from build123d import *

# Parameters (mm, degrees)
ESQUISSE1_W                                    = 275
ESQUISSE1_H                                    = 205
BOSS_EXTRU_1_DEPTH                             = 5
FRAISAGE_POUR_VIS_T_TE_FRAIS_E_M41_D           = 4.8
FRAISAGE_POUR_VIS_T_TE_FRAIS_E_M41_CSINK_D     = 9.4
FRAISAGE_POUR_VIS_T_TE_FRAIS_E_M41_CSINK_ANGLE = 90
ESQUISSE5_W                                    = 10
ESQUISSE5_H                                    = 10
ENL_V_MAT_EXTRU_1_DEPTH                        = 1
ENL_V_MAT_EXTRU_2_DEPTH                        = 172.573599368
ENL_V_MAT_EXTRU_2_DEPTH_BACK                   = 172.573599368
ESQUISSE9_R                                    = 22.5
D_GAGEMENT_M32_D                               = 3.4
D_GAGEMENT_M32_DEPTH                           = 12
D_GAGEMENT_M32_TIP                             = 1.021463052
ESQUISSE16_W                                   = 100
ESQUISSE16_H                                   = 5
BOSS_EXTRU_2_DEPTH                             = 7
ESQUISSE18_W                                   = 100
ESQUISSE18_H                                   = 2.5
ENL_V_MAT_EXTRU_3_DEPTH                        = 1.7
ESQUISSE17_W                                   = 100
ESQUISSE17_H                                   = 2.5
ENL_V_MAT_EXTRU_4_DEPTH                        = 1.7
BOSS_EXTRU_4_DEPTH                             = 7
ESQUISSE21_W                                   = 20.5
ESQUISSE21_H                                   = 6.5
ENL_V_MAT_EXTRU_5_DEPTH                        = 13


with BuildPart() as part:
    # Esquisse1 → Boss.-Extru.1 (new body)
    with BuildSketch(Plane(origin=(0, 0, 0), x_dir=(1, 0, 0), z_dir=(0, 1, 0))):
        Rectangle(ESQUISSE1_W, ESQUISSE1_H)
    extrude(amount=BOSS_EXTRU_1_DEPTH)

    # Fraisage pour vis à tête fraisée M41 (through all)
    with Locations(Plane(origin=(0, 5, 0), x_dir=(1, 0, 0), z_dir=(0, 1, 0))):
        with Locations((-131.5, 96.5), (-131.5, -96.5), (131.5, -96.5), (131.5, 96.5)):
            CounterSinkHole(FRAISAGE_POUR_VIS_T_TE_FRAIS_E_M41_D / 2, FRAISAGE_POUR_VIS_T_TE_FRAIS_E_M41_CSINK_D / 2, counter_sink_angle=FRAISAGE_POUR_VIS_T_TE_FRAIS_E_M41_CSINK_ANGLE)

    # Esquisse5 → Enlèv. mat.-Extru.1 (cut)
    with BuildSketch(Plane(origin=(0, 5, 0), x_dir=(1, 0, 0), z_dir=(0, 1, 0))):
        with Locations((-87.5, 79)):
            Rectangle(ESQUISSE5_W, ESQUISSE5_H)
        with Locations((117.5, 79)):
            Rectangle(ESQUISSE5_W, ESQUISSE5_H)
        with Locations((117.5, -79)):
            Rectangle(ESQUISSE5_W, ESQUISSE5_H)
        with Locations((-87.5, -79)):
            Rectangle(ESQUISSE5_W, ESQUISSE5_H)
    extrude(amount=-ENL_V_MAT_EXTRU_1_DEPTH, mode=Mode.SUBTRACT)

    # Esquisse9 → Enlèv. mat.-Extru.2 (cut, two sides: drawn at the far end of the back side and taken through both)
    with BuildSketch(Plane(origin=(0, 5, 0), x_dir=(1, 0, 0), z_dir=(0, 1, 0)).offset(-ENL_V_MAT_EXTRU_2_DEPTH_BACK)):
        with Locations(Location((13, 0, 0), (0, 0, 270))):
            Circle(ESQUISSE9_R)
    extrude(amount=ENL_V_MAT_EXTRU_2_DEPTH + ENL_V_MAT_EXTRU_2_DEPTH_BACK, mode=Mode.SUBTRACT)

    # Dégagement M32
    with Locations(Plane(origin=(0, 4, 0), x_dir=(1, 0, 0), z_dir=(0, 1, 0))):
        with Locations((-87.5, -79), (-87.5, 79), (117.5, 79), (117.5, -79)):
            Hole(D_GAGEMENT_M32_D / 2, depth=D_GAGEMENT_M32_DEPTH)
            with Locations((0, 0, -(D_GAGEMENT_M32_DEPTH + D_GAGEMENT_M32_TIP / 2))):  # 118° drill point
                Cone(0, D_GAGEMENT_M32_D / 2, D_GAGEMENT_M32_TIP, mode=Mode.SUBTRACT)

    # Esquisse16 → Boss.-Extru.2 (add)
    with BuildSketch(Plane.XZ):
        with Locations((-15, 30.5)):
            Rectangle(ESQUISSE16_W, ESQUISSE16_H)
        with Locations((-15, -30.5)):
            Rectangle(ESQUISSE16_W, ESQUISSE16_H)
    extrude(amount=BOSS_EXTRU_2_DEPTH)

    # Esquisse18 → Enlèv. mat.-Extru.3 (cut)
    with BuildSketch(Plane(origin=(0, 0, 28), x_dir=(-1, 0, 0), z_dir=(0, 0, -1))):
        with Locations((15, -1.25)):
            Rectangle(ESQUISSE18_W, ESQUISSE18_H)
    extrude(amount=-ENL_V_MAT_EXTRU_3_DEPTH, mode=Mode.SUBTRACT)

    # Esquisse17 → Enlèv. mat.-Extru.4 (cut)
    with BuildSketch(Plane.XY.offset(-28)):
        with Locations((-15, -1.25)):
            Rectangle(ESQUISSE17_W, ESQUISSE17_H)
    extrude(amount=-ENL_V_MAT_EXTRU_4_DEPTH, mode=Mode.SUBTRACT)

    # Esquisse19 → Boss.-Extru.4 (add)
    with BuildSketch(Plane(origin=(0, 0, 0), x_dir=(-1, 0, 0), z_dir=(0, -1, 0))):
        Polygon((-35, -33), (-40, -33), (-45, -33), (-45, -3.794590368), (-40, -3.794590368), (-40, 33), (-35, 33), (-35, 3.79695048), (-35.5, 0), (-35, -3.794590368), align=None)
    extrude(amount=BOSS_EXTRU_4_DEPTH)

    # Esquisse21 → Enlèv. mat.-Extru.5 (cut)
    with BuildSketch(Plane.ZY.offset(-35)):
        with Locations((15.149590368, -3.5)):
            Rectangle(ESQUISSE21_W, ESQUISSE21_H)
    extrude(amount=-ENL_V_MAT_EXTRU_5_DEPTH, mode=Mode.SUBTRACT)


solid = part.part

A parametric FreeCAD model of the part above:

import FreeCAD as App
import Part
import Sketcher

V = App.Vector
Q = App.Units.Quantity

doc = App.newDocument("Part")
params = doc.addObject("Spreadsheet::Sheet", "Params")
for row, (alias, value) in enumerate([
    ("sketch1_width", "275 mm"),
    ("sketch1_height", "205 mm"),
    ("pad1_length", "5 mm"),
    ("sketch2_diameter", "4.8 mm"),
    ("hole_diameter", "4.8 mm"),
    ("hole_csink_diameter", "9.4 mm"),
    ("sketch3_width", "10 mm"),
    ("pocket1_length", "1 mm"),
    ("sketch4_diameter", "45 mm"),
    ("sketch5_diameter", "3.4 mm"),
    ("hole2_diameter", "3.4 mm"),
    ("hole2_depth", "12 mm"),
    ("sketch6_width", "100 mm"),
    ("sketch6_height", "5 mm"),
    ("pad2_length", "7 mm"),
    ("sketch7_width", "100 mm"),
    ("sketch7_height", "2.5 mm"),
    ("pocket3_length", "1.7 mm"),
    ("sketch8_width", "100 mm"),
    ("sketch8_height", "2.5 mm"),
    ("pocket4_length", "1.7 mm"),
    ("sketch9_width", "10 mm"),
    ("pad3_length", "7 mm"),
    ("sketch10_width", "6.5 mm"),
    ("sketch10_height", "20.5 mm"),
    ("pocket5_length", "13 mm"),
], start=1):
    params.set(f"A{row}", alias)
    params.set(f"B{row}", "=" + value)
    params.setAlias(f"B{row}", alias)

body = doc.addObject("PartDesign::Body", "Body")

sketch1 = body.newObject("Sketcher::SketchObject", "Sketch")
sketch1.AttachmentSupport = (doc.getObject("XZ_Plane"), [""])
sketch1.MapMode = "FlatFace"
sketch1.addGeometry([
    Part.LineSegment(V(-138, -102, 0), V(-138, 102, 0)),
    Part.LineSegment(V(-138, 102, 0), V(138, 102, 0)),
    Part.LineSegment(V(138, 102, 0), V(138, -102, 0)),
    Part.LineSegment(V(138, -102, 0), V(-138, -102, 0)),
], False)
sketch1.addConstraint([
    Sketcher.Constraint("Coincident", 0, 2, 1, 1),
    Sketcher.Constraint("Coincident", 1, 2, 2, 1),
    Sketcher.Constraint("Coincident", 2, 2, 3, 1),
    Sketcher.Constraint("Coincident", 3, 2, 0, 1),
    Sketcher.Constraint("Vertical", 0),
    Sketcher.Constraint("Horizontal", 1),
    Sketcher.Constraint("Vertical", 2),
    Sketcher.Constraint("Horizontal", 3),
    Sketcher.Constraint("Symmetric", 0, 2, 2, 2, -1, 1),
    Sketcher.Constraint("DistanceX", 1, 1, 1, 2, Q("275 mm")),
    Sketcher.Constraint("DistanceY", 0, 1, 0, 2, Q("205 mm")),
])
sketch1.setExpression("Constraints[9]", "Params.sketch1_width")
sketch1.setExpression("Constraints[10]", "Params.sketch1_height")
pad1 = body.newObject("PartDesign::Pad", "Pad")
pad1.Profile = sketch1
pad1.setExpression("Length", "Params.pad1_length")
pad1.Reversed = True

sketch2 = body.newObject("Sketcher::SketchObject", "Sketch001")
sketch2.AttachmentSupport = (doc.getObject("XZ_Plane"), [""])
sketch2.MapMode = "FlatFace"
sketch2.AttachmentOffset = App.Placement(V(0, 0, -5), App.Rotation())
sketch2.addGeometry([
    Part.Circle(V(-131.5, -96.5, 0), V(0, 0, 1), 2.4),
    Part.Circle(V(-131.5, 96.5, 0), V(0, 0, 1), 2.4),
    Part.Circle(V(131.5, 96.5, 0), V(0, 0, 1), 2.4),
    Part.Circle(V(131.5, -96.5, 0), V(0, 0, 1), 2.4),
], False)
sketch2.addConstraint([
    Sketcher.Constraint("Equal", 0, 1),
    Sketcher.Constraint("Equal", 1, 2),
    Sketcher.Constraint("Equal", 2, 3),
    Sketcher.Constraint("Symmetric", 0, 3, 2, 3, -1, 1),
    Sketcher.Constraint("Symmetric", 1, 3, 3, 3, -1, 1),
    Sketcher.Constraint("Symmetric", 1, 3, 2, 3, -2),
    Sketcher.Constraint("Diameter", 0, Q("4.8 mm")),
    Sketcher.Constraint("DistanceY", 0, 3, 1, 3, Q("193 mm")),
    Sketcher.Constraint("DistanceX", 1, 3, 2, 3, Q("263 mm")),
])
sketch2.setExpression("Constraints[6]", "Params.sketch2_diameter")
doc.recompute()
hole = body.newObject("PartDesign::Hole", "Hole")
hole.Profile = sketch2
hole.ThreadType = "None"
hole.setExpression("Diameter", "Params.hole_diameter")
hole.DepthType = "ThroughAll"
hole.HoleCutType = "Countersink"
hole.setExpression("HoleCutDiameter", "Params.hole_csink_diameter")
hole.HoleCutCountersinkAngle = 90
hole.Reversed = True

sketch3 = body.newObject("Sketcher::SketchObject", "Sketch002")
sketch3.AttachmentSupport = (doc.getObject("XZ_Plane"), [""])
sketch3.MapMode = "FlatFace"
sketch3.AttachmentOffset = App.Placement(V(0, 0, -5), App.Rotation())
sketch3.addGeometry([
    Part.LineSegment(V(-92, -84, 0), V(-92, -74, 0)),
    Part.LineSegment(V(-92, -74, 0), V(-82, -74, 0)),
    Part.LineSegment(V(-82, -74, 0), V(-82, -84, 0)),
    Part.LineSegment(V(-82, -84, 0), V(-92, -84, 0)),
    Part.LineSegment(V(112, -84, 0), V(112, -74, 0)),
    Part.LineSegment(V(112, -74, 0), V(122, -74, 0)),
    Part.LineSegment(V(122, -74, 0), V(122, -84, 0)),
    Part.LineSegment(V(122, -84, 0), V(112, -84, 0)),
    Part.LineSegment(V(112, 74, 0), V(112, 84, 0)),
    Part.LineSegment(V(112, 84, 0), V(122, 84, 0)),
    Part.LineSegment(V(122, 84, 0), V(122, 74, 0)),
    Part.LineSegment(V(122, 74, 0), V(112, 74, 0)),
    Part.LineSegment(V(-92, 74, 0), V(-92, 84, 0)),
    Part.LineSegment(V(-92, 84, 0), V(-82, 84, 0)),
    Part.LineSegment(V(-82, 84, 0), V(-82, 74, 0)),
    Part.LineSegment(V(-82, 74, 0), V(-92, 74, 0)),
], False)
sketch3.addConstraint([
    Sketcher.Constraint("Coincident", 0, 2, 1, 1),
    Sketcher.Constraint("Coincident", 1, 2, 2, 1),
    Sketcher.Constraint("Coincident", 2, 2, 3, 1),
    Sketcher.Constraint("Coincident", 3, 2, 0, 1),
    Sketcher.Constraint("Coincident", 4, 2, 5, 1),
    Sketcher.Constraint("Coincident", 5, 2, 6, 1),
    Sketcher.Constraint("Coincident", 6, 2, 7, 1),
    Sketcher.Constraint("Coincident", 7, 2, 4, 1),
    Sketcher.Constraint("Coincident", 8, 2, 9, 1),
    Sketcher.Constraint("Coincident", 9, 2, 10, 1),
    Sketcher.Constraint("Coincident", 10, 2, 11, 1),
    Sketcher.Constraint("Coincident", 11, 2, 8, 1),
    Sketcher.Constraint("Coincident", 12, 2, 13, 1),
    Sketcher.Constraint("Coincident", 13, 2, 14, 1),
    Sketcher.Constraint("Coincident", 14, 2, 15, 1),
    Sketcher.Constraint("Coincident", 15, 2, 12, 1),
    Sketcher.Constraint("Vertical", 0),
    Sketcher.Constraint("Horizontal", 1),
    Sketcher.Constraint("Vertical", 2),
    Sketcher.Constraint("Horizontal", 3),
    Sketcher.Constraint("Vertical", 4),
    Sketcher.Constraint("Horizontal", 5),
    Sketcher.Constraint("Vertical", 6),
    Sketcher.Constraint("Horizontal", 7),
    Sketcher.Constraint("Vertical", 8),
    Sketcher.Constraint("Horizontal", 9),
    Sketcher.Constraint("Vertical", 10),
    Sketcher.Constraint("Horizontal", 11),
    Sketcher.Constraint("Vertical", 12),
    Sketcher.Constraint("Horizontal", 13),
    Sketcher.Constraint("Vertical", 14),
    Sketcher.Constraint("Horizontal", 15),
    Sketcher.Constraint("Symmetric", 7, 2, 8, 2, -1),
    Sketcher.Constraint("Symmetric", 5, 2, 10, 2, -1),
    Sketcher.Constraint("Symmetric", 3, 2, 12, 2, -1),
    Sketcher.Constraint("Symmetric", 1, 2, 14, 2, -1),
    Sketcher.Constraint("Horizontal", 1, 2, 4, 2),
    Sketcher.Constraint("Horizontal", 3, 2, 6, 2),
    Sketcher.Constraint("Equal", 3, 5),
    Sketcher.Constraint("Equal", 15, 0),
    Sketcher.Constraint("DistanceX", 1, 1, 1, 2, Q("10 mm")),
    Sketcher.Constraint("DistanceY", 0, 2, -1, 1, Q("74 mm")),
    Sketcher.Constraint("DistanceX", 1, 2, 4, 2, Q("195 mm")),
    Sketcher.Constraint("DistanceX", 0, 2, -1, 1, Q("92.5 mm")),
])
sketch3.setExpression("Constraints[40]", "Params.sketch3_width")
pocket1 = body.newObject("PartDesign::Pocket", "Pocket")
pocket1.Profile = sketch3
pocket1.setExpression("Length", "Params.pocket1_length")
pocket1.Reversed = True

sketch4 = body.newObject("Sketcher::SketchObject", "Sketch003")
sketch4.AttachmentSupport = (doc.getObject("XZ_Plane"), [""])
sketch4.MapMode = "FlatFace"
sketch4.AttachmentOffset = App.Placement(V(0, 0, -5), App.Rotation())
sketch4.addGeometry(Part.Circle(V(13, 0, 0), V(0, 0, 1), 22), False)
sketch4.addConstraint([
    Sketcher.Constraint("PointOnObject", 0, 3, -1),
    Sketcher.Constraint("Diameter", 0, Q("45 mm")),
    Sketcher.Constraint("DistanceX", -1, 1, 0, 3, Q("13 mm")),
])
sketch4.setExpression("Constraints[1]", "Params.sketch4_diameter")
pocket2 = body.newObject("PartDesign::Pocket", "Pocket001")
pocket2.Profile = sketch4
pocket2.Type = "ThroughAll"
pocket2.Midplane = True

sketch5 = body.newObject("Sketcher::SketchObject", "Sketch004")
sketch5.AttachmentSupport = (doc.getObject("XZ_Plane"), [""])
sketch5.MapMode = "FlatFace"
sketch5.AttachmentOffset = App.Placement(V(0, 0, -4), App.Rotation())
sketch5.addGeometry([
    Part.Circle(V(-87.5, 79, 0), V(0, 0, 1), 1.7),
    Part.Circle(V(-87.5, -79, 0), V(0, 0, 1), 1.7),
    Part.Circle(V(117.5, -79, 0), V(0, 0, 1), 1.7),
    Part.Circle(V(117.5, 79, 0), V(0, 0, 1), 1.7),
], False)
sketch5.addConstraint([
    Sketcher.Constraint("Equal", 0, 1),
    Sketcher.Constraint("Equal", 1, 2),
    Sketcher.Constraint("Equal", 2, 3),
    Sketcher.Constraint("Symmetric", 0, 3, 1, 3, -1),
    Sketcher.Constraint("Symmetric", 2, 3, 3, 3, -1),
    Sketcher.Constraint("Horizontal", 1, 3, 2, 3),
    Sketcher.Constraint("Diameter", 0, Q("3.4 mm")),
    Sketcher.Constraint("DistanceY", -1, 1, 0, 3, Q("79 mm")),
    Sketcher.Constraint("DistanceX", 1, 3, 2, 3, Q("205 mm")),
    Sketcher.Constraint("DistanceX", 0, 3, -1, 1, Q("87.5 mm")),
])
sketch5.setExpression("Constraints[6]", "Params.sketch5_diameter")
doc.recompute()
hole2 = body.newObject("PartDesign::Hole", "Hole001")
hole2.Profile = sketch5
hole2.ThreadType = "None"
hole2.setExpression("Diameter", "Params.hole2_diameter")
hole2.DepthType = "Dimension"
hole2.setExpression("Depth", "Params.hole2_depth")
hole2.DrillPoint = "Angled"
hole2.DrillPointAngle = 118
hole2.Reversed = True

sketch6 = body.newObject("Sketcher::SketchObject", "Sketch005")
sketch6.AttachmentSupport = (doc.getObject("XZ_Plane"), [""])
sketch6.MapMode = "FlatFace"
sketch6.addGeometry([
    Part.LineSegment(V(-65, 33, 0), V(-65, 28, 0)),
    Part.LineSegment(V(-65, 28, 0), V(35, 28, 0)),
    Part.LineSegment(V(35, 28, 0), V(35, 33, 0)),
    Part.LineSegment(V(35, 33, 0), V(-65, 33, 0)),
    Part.LineSegment(V(-65, -28, 0), V(-65, -33, 0)),
    Part.LineSegment(V(-65, -33, 0), V(35, -33, 0)),
    Part.LineSegment(V(35, -33, 0), V(35, -28, 0)),
    Part.LineSegment(V(35, -28, 0), V(-65, -28, 0)),
], False)
sketch6.addConstraint([
    Sketcher.Constraint("Coincident", 0, 2, 1, 1),
    Sketcher.Constraint("Coincident", 1, 2, 2, 1),
    Sketcher.Constraint("Coincident", 2, 2, 3, 1),
    Sketcher.Constraint("Coincident", 3, 2, 0, 1),
    Sketcher.Constraint("Coincident", 4, 2, 5, 1),
    Sketcher.Constraint("Coincident", 5, 2, 6, 1),
    Sketcher.Constraint("Coincident", 6, 2, 7, 1),
    Sketcher.Constraint("Coincident", 7, 2, 4, 1),
    Sketcher.Constraint("Vertical", 0),
    Sketcher.Constraint("Horizontal", 1),
    Sketcher.Constraint("Vertical", 2),
    Sketcher.Constraint("Horizontal", 3),
    Sketcher.Constraint("Vertical", 4),
    Sketcher.Constraint("Horizontal", 5),
    Sketcher.Constraint("Vertical", 6),
    Sketcher.Constraint("Horizontal", 7),
    Sketcher.Constraint("Symmetric", 3, 2, 4, 2, -1),
    Sketcher.Constraint("Symmetric", 1, 2, 6, 2, -1),
    Sketcher.Constraint("DistanceX", 1, 1, 1, 2, Q("100 mm")),
    Sketcher.Constraint("DistanceY", 0, 2, 0, 1, Q("5 mm")),
    Sketcher.Constraint("DistanceX", 0, 2, -1, 1, Q("65 mm")),
    Sketcher.Constraint("DistanceY", -1, 1, 0, 2, Q("28 mm")),
])
sketch6.setExpression("Constraints[18]", "Params.sketch6_width")
sketch6.setExpression("Constraints[19]", "Params.sketch6_height")
pad2 = body.newObject("PartDesign::Pad", "Pad001")
pad2.Profile = sketch6
pad2.setExpression("Length", "Params.pad2_length")

sketch7 = body.newObject("Sketcher::SketchObject", "Sketch006")
sketch7.AttachmentSupport = (doc.getObject("XY_Plane"), [""])
sketch7.MapMode = "FlatFace"
sketch7.AttachmentOffset = App.Placement(V(0, 0, 28), App.Rotation())
sketch7.addGeometry([
    Part.LineSegment(V(35, 0, 0), V(35, -2.5, 0)),
    Part.LineSegment(V(35, -2.5, 0), V(-65, -2.5, 0)),
    Part.LineSegment(V(-65, -2.5, 0), V(-65, 0, 0)),
    Part.LineSegment(V(-65, 0, 0), V(35, 0, 0)),
], False)
sketch7.addConstraint([
    Sketcher.Constraint("Coincident", 0, 2, 1, 1),
    Sketcher.Constraint("Coincident", 1, 2, 2, 1),
    Sketcher.Constraint("Coincident", 2, 2, 3, 1),
    Sketcher.Constraint("Coincident", 3, 2, 0, 1),
    Sketcher.Constraint("Vertical", 0),
    Sketcher.Constraint("Horizontal", 1),
    Sketcher.Constraint("Vertical", 2),
    Sketcher.Constraint("Horizontal", 3),
    Sketcher.Constraint("PointOnObject", 2, 2, -1),
    Sketcher.Constraint("DistanceX", 1, 2, 1, 1, Q("100 mm")),
    Sketcher.Constraint("DistanceY", 0, 2, 0, 1, Q("2.5 mm")),
    Sketcher.Constraint("DistanceX", -1, 1, 0, 2, Q("35 mm")),
])
sketch7.setExpression("Constraints[9]", "Params.sketch7_width")
sketch7.setExpression("Constraints[10]", "Params.sketch7_height")
pocket3 = body.newObject("PartDesign::Pocket", "Pocket002")
pocket3.Profile = sketch7
pocket3.setExpression("Length", "Params.pocket3_length")
pocket3.Reversed = True

sketch8 = body.newObject("Sketcher::SketchObject", "Sketch007")
sketch8.AttachmentSupport = (doc.getObject("XY_Plane"), [""])
sketch8.MapMode = "FlatFace"
sketch8.AttachmentOffset = App.Placement(V(0, 0, -28), App.Rotation())
sketch8.addGeometry([
    Part.LineSegment(V(-65, 0, 0), V(-65, -2.5, 0)),
    Part.LineSegment(V(-65, -2.5, 0), V(35, -2.5, 0)),
    Part.LineSegment(V(35, -2.5, 0), V(35, 0, 0)),
    Part.LineSegment(V(35, 0, 0), V(-65, 0, 0)),
], False)
sketch8.addConstraint([
    Sketcher.Constraint("Coincident", 0, 2, 1, 1),
    Sketcher.Constraint("Coincident", 1, 2, 2, 1),
    Sketcher.Constraint("Coincident", 2, 2, 3, 1),
    Sketcher.Constraint("Coincident", 3, 2, 0, 1),
    Sketcher.Constraint("Vertical", 0),
    Sketcher.Constraint("Horizontal", 1),
    Sketcher.Constraint("Vertical", 2),
    Sketcher.Constraint("Horizontal", 3),
    Sketcher.Constraint("PointOnObject", 2, 2, -1),
    Sketcher.Constraint("DistanceX", 1, 1, 1, 2, Q("100 mm")),
    Sketcher.Constraint("DistanceY", 0, 2, 0, 1, Q("2.5 mm")),
    Sketcher.Constraint("DistanceX", 0, 2, -1, 1, Q("65 mm")),
])
sketch8.setExpression("Constraints[9]", "Params.sketch8_width")
sketch8.setExpression("Constraints[10]", "Params.sketch8_height")
pocket4 = body.newObject("PartDesign::Pocket", "Pocket003")
pocket4.Profile = sketch8
pocket4.setExpression("Length", "Params.pocket4_length")

sketch9 = body.newObject("Sketcher::SketchObject", "Sketch008")
sketch9.AttachmentSupport = (doc.getObject("XZ_Plane"), [""])
sketch9.MapMode = "FlatFace"
sketch9.addGeometry([
    Part.LineSegment(V(45, 33, 0), V(35, 33, 0)),
    Part.LineSegment(V(35, 33, 0), V(35, 3.8, 0)),
    Part.LineSegment(V(35, 3.8, 0), V(35.5, 0, 0)),
    Part.LineSegment(V(35.5, 0, 0), V(35, -3.8, 0)),
    Part.LineSegment(V(35, -3.8, 0), V(35, -33, 0)),
    Part.LineSegment(V(35, -33, 0), V(40, -33, 0)),
    Part.LineSegment(V(40, -33, 0), V(40, 3.8, 0)),
    Part.LineSegment(V(40, 3.8, 0), V(45, 3.8, 0)),
    Part.LineSegment(V(45, 3.8, 0), V(45, 33, 0)),
], False)
sketch9.addConstraint([
    Sketcher.Constraint("Coincident", 0, 2, 1, 1),
    Sketcher.Constraint("Coincident", 1, 2, 2, 1),
    Sketcher.Constraint("Coincident", 2, 2, 3, 1),
    Sketcher.Constraint("Coincident", 3, 2, 4, 1),
    Sketcher.Constraint("Coincident", 4, 2, 5, 1),
    Sketcher.Constraint("Coincident", 5, 2, 6, 1),
    Sketcher.Constraint("Coincident", 6, 2, 7, 1),
    Sketcher.Constraint("Coincident", 7, 2, 8, 1),
    Sketcher.Constraint("Coincident", 8, 2, 0, 1),
    Sketcher.Constraint("Horizontal", 0),
    Sketcher.Constraint("Vertical", 1),
    Sketcher.Constraint("Vertical", 4),
    Sketcher.Constraint("Horizontal", 5),
    Sketcher.Constraint("Vertical", 6),
    Sketcher.Constraint("Horizontal", 7),
    Sketcher.Constraint("Vertical", 8),
    Sketcher.Constraint("Symmetric", 0, 2, 4, 2, -1),
    Sketcher.Constraint("PointOnObject", 2, 2, -1),
    Sketcher.Constraint("Horizontal", 1, 2, 6, 2),
    Sketcher.Constraint("Equal", 5, 7),
    Sketcher.Constraint("DistanceX", 0, 2, 0, 1, Q("10 mm")),
    Sketcher.Constraint("DistanceX", -1, 1, 0, 2, Q("35 mm")),
    Sketcher.Constraint("DistanceY", -1, 1, 0, 2, Q("33 mm")),
    Sketcher.Constraint("DistanceX", -1, 1, 2, 2, Q("35.5 mm")),
    Sketcher.Constraint("DistanceY", 1, 2, 1, 1, Q("29.20541 mm")),
    Sketcher.Constraint("DistanceY", 4, 2, 4, 1, Q("29.20305 mm")),
])
sketch9.setExpression("Constraints[20]", "Params.sketch9_width")
pad3 = body.newObject("PartDesign::Pad", "Pad002")
pad3.Profile = sketch9
pad3.setExpression("Length", "Params.pad3_length")

sketch10 = body.newObject("Sketcher::SketchObject", "Sketch009")
sketch10.AttachmentSupport = (doc.getObject("YZ_Plane"), [""])
sketch10.MapMode = "FlatFace"
sketch10.AttachmentOffset = App.Placement(V(0, 0, 35), App.Rotation())
sketch10.addGeometry([
    Part.LineSegment(V(0, 5, 0), V(-7, 5, 0)),
    Part.LineSegment(V(-7, 5, 0), V(-7, 25, 0)),
    Part.LineSegment(V(-7, 25, 0), V(0, 25, 0)),
    Part.LineSegment(V(0, 25, 0), V(0, 5, 0)),
], False)
sketch10.addConstraint([
    Sketcher.Constraint("Coincident", 0, 2, 1, 1),
    Sketcher.Constraint("Coincident", 1, 2, 2, 1),
    Sketcher.Constraint("Coincident", 2, 2, 3, 1),
    Sketcher.Constraint("Coincident", 3, 2, 0, 1),
    Sketcher.Constraint("Horizontal", 0),
    Sketcher.Constraint("Vertical", 1),
    Sketcher.Constraint("Horizontal", 2),
    Sketcher.Constraint("Vertical", 3),
    Sketcher.Constraint("DistanceX", 0, 2, 0, 1, Q("6.5 mm")),
    Sketcher.Constraint("DistanceY", 1, 1, 1, 2, Q("20.5 mm")),
    Sketcher.Constraint("DistanceX", 0, 2, -1, 1, Q("6.75 mm")),
    Sketcher.Constraint("DistanceY", -1, 1, 0, 2, Q("4.89959 mm")),
])
sketch10.setExpression("Constraints[8]", "Params.sketch10_width")
sketch10.setExpression("Constraints[9]", "Params.sketch10_height")
pocket5 = body.newObject("PartDesign::Pocket", "Pocket004")
pocket5.Profile = sketch10
pocket5.setExpression("Length", "Params.pocket5_length")
pocket5.Reversed = True

doc.recompute()
